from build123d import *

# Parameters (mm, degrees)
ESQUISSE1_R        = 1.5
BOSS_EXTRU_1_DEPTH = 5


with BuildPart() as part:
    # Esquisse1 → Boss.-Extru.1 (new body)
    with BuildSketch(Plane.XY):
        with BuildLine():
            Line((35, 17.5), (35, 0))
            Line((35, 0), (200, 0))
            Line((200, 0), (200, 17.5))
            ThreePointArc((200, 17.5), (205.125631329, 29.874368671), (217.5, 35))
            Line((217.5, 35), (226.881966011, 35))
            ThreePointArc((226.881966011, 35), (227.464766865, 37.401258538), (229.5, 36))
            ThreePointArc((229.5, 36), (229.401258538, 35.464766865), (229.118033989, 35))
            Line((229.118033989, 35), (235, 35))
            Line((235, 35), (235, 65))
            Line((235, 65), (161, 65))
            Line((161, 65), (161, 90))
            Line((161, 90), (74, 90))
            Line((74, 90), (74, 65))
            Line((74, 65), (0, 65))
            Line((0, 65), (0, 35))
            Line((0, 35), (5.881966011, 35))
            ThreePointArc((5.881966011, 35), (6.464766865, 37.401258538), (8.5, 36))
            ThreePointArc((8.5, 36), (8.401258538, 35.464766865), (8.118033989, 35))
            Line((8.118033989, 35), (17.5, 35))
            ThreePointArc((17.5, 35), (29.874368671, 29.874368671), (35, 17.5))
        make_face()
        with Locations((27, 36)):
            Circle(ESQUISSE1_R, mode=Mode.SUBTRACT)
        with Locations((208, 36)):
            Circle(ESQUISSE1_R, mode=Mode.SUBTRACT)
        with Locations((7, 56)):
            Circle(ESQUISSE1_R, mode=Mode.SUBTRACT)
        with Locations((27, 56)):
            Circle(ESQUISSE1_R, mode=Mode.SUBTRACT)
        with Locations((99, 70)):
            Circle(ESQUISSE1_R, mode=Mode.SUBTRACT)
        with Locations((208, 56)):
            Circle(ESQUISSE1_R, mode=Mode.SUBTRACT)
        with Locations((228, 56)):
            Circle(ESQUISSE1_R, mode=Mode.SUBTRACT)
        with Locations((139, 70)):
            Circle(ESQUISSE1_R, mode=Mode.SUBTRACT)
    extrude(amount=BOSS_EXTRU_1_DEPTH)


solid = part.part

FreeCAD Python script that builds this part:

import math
import FreeCAD as App
import Part
import Sketcher

V = App.Vector

doc = App.newDocument("Part")
params = doc.addObject("Spreadsheet::Sheet", "Params")
for row, (alias, value) in enumerate([
    ("sketch1_diameter", "3 mm"),
    ("sketch1_radius", "17.5 mm"),
    ("sketch1_width", "165 mm"),
    ("sketch1_width2", "74 mm"),
    ("sketch1_width3", "87 mm"),
    ("pad1_length", "5 mm"),
], start=1):
    params.set(f"A{row}", alias)
    params.set(f"B{row}", "=" + value)
    params.setAlias(f"B{row}", alias)

body = doc.addObject("PartDesign::Body", "Body")

sketch1 = body.newObject("Sketcher::SketchObject", "Sketch")
sketch1.AttachmentSupport = (doc.getObject("XY_Plane"), [""])
sketch1.MapMode = "FlatFace"
sketch1.addGeometry(Part.LineSegment(V(35, 17.5, 0), V(35, 0, 0)), False)
sketch1.addGeometry(Part.LineSegment(V(35, 0, 0), V(200, 0, 0)), False)
sketch1.addGeometry(Part.LineSegment(V(200, 0, 0), V(200, 17.5, 0)), False)
sketch1.addGeometry(Part.ArcOfCircle(Part.Circle(V(217.5, 17.5, 0), V(0, 0, 1), 17.5), math.radians(90), math.radians(180)), False)
sketch1.addGeometry(Part.LineSegment(V(217.5, 35, 0), V(226.9, 35, 0)), False)
sketch1.addGeometry(Part.ArcOfCircle(Part.Circle(V(228, 36, 0), V(0, 0, 1), 1.5), math.radians(0), math.radians(222)), False)
sketch1.addGeometry(Part.ArcOfCircle(Part.Circle(V(228, 36, 0), V(0, 0, 1), 1.5), math.radians(-42), math.radians(0)), False)
sketch1.addGeometry(Part.LineSegment(V(229.1, 35, 0), V(235, 35, 0)), False)
sketch1.addGeometry(Part.LineSegment(V(235, 35, 0), V(235, 65, 0)), False)
sketch1.addGeometry(Part.LineSegment(V(235, 65, 0), V(161, 65, 0)), False)
sketch1.addGeometry(Part.LineSegment(V(161, 65, 0), V(161, 90, 0)), False)
sketch1.addGeometry(Part.LineSegment(V(161, 90, 0), V(74, 90, 0)), False)
sketch1.addGeometry(Part.LineSegment(V(74, 90, 0), V(74, 65, 0)), False)
sketch1.addGeometry(Part.LineSegment(V(74, 65, 0), V(0, 65, 0)), False)
sketch1.addGeometry(Part.LineSegment(V(0, 65, 0), V(0, 35, 0)), False)
sketch1.addGeometry(Part.LineSegment(V(0, 35, 0), V(5.9, 35, 0)), False)
sketch1.addGeometry(Part.ArcOfCircle(Part.Circle(V(7, 36, 0), V(0, 0, 1), 1.5), math.radians(0), math.radians(222)), False)
sketch1.addGeometry(Part.ArcOfCircle(Part.Circle(V(7, 36, 0), V(0, 0, 1), 1.5), math.radians(-42), math.radians(0)), False)
sketch1.addGeometry(Part.LineSegment(V(8.1, 35, 0), V(17.5, 35, 0)), False)
sketch1.addGeometry(Part.ArcOfCircle(Part.Circle(V(17.5, 17.5, 0), V(0, 0, 1), 17.5), math.radians(0), math.radians(90)), False)
sketch1.addGeometry(Part.Circle(V(27, 36, 0), V(0, 0, 1), 1.5), False)
sketch1.addGeometry(Part.Circle(V(208, 36, 0), V(0, 0, 1), 1.5), False)
sketch1.addGeometry(Part.Circle(V(7, 56, 0), V(0, 0, 1), 1.5), False)
sketch1.addGeometry(Part.Circle(V(27, 56, 0), V(0, 0, 1), 1.5), False)
sketch1.addGeometry(Part.Circle(V(99, 70, 0), V(0, 0, 1), 1.5), False)
sketch1.addGeometry(Part.Circle(V(208, 56, 0), V(0, 0, 1), 1.5), False)
sketch1.addGeometry(Part.Circle(V(228, 56, 0), V(0, 0, 1), 1.5), False)
sketch1.addGeometry(Part.Circle(V(139, 70, 0), V(0, 0, 1), 1.5), False)
sketch1.addConstraint(Sketcher.Constraint("Coincident", 0, 2, 1, 1))
sketch1.addConstraint(Sketcher.Constraint("Coincident", 1, 2, 2, 1))
sketch1.addConstraint(Sketcher.Constraint("Tangent", 2, 2, 3, 2))
sketch1.addConstraint(Sketcher.Constraint("Tangent", 3, 1, 4, 1))
sketch1.addConstraint(Sketcher.Constraint("Coincident", 4, 2, 5, 2))
sketch1.addConstraint(Sketcher.Constraint("Tangent", 5, 1, 6, 2))
sketch1.addConstraint(Sketcher.Constraint("Coincident", 6, 1, 7, 1))
sketch1.addConstraint(Sketcher.Constraint("Coincident", 7, 2, 8, 1))
sketch1.addConstraint(Sketcher.Constraint("Coincident", 8, 2, 9, 1))
sketch1.addConstraint(Sketcher.Constraint("Coincident", 9, 2, 10, 1))
sketch1.addConstraint(Sketcher.Constraint("Coincident", 10, 2, 11, 1))
sketch1.addConstraint(Sketcher.Constraint("Coincident", 11, 2, 12, 1))
sketch1.addConstraint(Sketcher.Constraint("Coincident", 12, 2, 13, 1))
sketch1.addConstraint(Sketcher.Constraint("Coincident", 13, 2, 14, 1))
sketch1.addConstraint(Sketcher.Constraint("Coincident", 14, 2, 15, 1))
sketch1.addConstraint(Sketcher.Constraint("Coincident", 15, 2, 16, 2))
sketch1.addConstraint(Sketcher.Constraint("Tangent", 16, 1, 17, 2))
sketch1.addConstraint(Sketcher.Constraint("Coincident", 17, 1, 18, 1))
sketch1.addConstraint(Sketcher.Constraint("Tangent", 18, 2, 19, 2))
sketch1.addConstraint(Sketcher.Constraint("Tangent", 19, 1, 0, 1))
sketch1.addConstraint(Sketcher.Constraint("Vertical", 0))
sketch1.addConstraint(Sketcher.Constraint("Horizontal", 1))
sketch1.addConstraint(Sketcher.Constraint("Vertical", 2))
sketch1.addConstraint(Sketcher.Constraint("Horizontal", 4))
sketch1.addConstraint(Sketcher.Constraint("Horizontal", 7))
sketch1.addConstraint(Sketcher.Constraint("Vertical", 8))
sketch1.addConstraint(Sketcher.Constraint("Horizontal", 9))
sketch1.addConstraint(Sketcher.Constraint("Vertical", 10))
sketch1.addConstraint(Sketcher.Constraint("Horizontal", 11))
sketch1.addConstraint(Sketcher.Constraint("Vertical", 12))
sketch1.addConstraint(Sketcher.Constraint("Horizontal", 13))
sketch1.addConstraint(Sketcher.Constraint("Vertical", 14))
sketch1.addConstraint(Sketcher.Constraint("Horizontal", 15))
sketch1.addConstraint(Sketcher.Constraint("Horizontal", 18))
sketch1.addConstraint(Sketcher.Constraint("Equal", 5, 6))
sketch1.addConstraint(Sketcher.Constraint("Equal", 6, 16))
sketch1.addConstraint(Sketcher.Constraint("Equal", 16, 17))
sketch1.addConstraint(Sketcher.Constraint("Equal", 3, 19))
sketch1.addConstraint(Sketcher.Constraint("Equal", 17, 20))
sketch1.addConstraint(Sketcher.Constraint("Equal", 20, 21))
sketch1.addConstraint(Sketcher.Constraint("Equal", 21, 22))
sketch1.addConstraint(Sketcher.Constraint("Equal", 22, 23))
sketch1.addConstraint(Sketcher.Constraint("Equal", 23, 24))
sketch1.addConstraint(Sketcher.Constraint("Equal", 24, 25))
sketch1.addConstraint(Sketcher.Constraint("Equal", 25, 26))
sketch1.addConstraint(Sketcher.Constraint("Equal", 26, 27))
sketch1.addConstraint(Sketcher.Constraint("PointOnObject", 0, 2, -1))
sketch1.addConstraint(Sketcher.Constraint("PointOnObject", 13, 2, -2))
sketch1.addConstraint(Sketcher.Constraint("Horizontal", 6, 3, 16, 3))
sketch1.addConstraint(Sketcher.Constraint("Horizontal", 3, 3, 19, 3))
sketch1.addConstraint(Sketcher.Constraint("Horizontal", 17, 3, 20, 3))
sketch1.addConstraint(Sketcher.Constraint("Horizontal", 20, 3, 21, 3))
sketch1.addConstraint(Sketcher.Constraint("Horizontal", 22, 3, 23, 3))
sketch1.addConstraint(Sketcher.Constraint("Horizontal", 23, 3, 25, 3))
sketch1.addConstraint(Sketcher.Constraint("Horizontal", 25, 3, 26, 3))
sketch1.addConstraint(Sketcher.Constraint("Horizontal", 24, 3, 27, 3))
sketch1.addConstraint(Sketcher.Constraint("Horizontal", 21, 3, 5, 1))
sketch1.addConstraint(Sketcher.Constraint("Horizontal", 4, 2, 6, 1))
sketch1.addConstraint(Sketcher.Constraint("Horizontal", 9, 2, 12, 2))
sketch1.addConstraint(Sketcher.Constraint("Horizontal", 7, 2, 14, 2))
sketch1.addConstraint(Sketcher.Constraint("Horizontal", 5, 1, 16, 1))
sketch1.addConstraint(Sketcher.Constraint("Vertical", 17, 3, 22, 3))
sketch1.addConstraint(Sketcher.Constraint("Vertical", 20, 3, 23, 3))
sketch1.addConstraint(Sketcher.Constraint("Vertical", 21, 3, 25, 3))
sketch1.addConstraint(Sketcher.Constraint("Vertical", 6, 3, 26, 3))
sketch1.addConstraint(Sketcher.Constraint("Equal", 9, 13))
sketch1.addConstraint(Sketcher.Constraint("Equal", 7, 15))
sketch1.addConstraint(Sketcher.Constraint("Equal", 4, 18))
sketch1.addConstraint(Sketcher.Constraint("Diameter", 20, 3.0))
sketch1.addConstraint(Sketcher.Constraint("Radius", 3, 17.5))
sketch1.addConstraint(Sketcher.Constraint("DistanceX", 1, 1, 1, 2, 165.0))
sketch1.addConstraint(Sketcher.Constraint("DistanceX", 9, 2, 9, 1, 74.0))
sketch1.addConstraint(Sketcher.Constraint("DistanceX", 11, 2, 11, 1, 87.0))
sketch1.addConstraint(Sketcher.Constraint("DistanceY", 8, 1, 8, 2, 30.0))
sketch1.addConstraint(Sketcher.Constraint("DistanceY", 10, 1, 10, 2, 25.0))
sketch1.addConstraint(Sketcher.Constraint("DistanceY", 0, 2, 0, 1, 17.5))
sketch1.addConstraint(Sketcher.Constraint("DistanceX", -1, 1, 5, 3, 228.0))
sketch1.addConstraint(Sketcher.Constraint("DistanceY", -1, 1, 5, 3, 36.0))
sketch1.addConstraint(Sketcher.Constraint("DistanceX", -1, 1, 20, 3, 27.0))
sketch1.addConstraint(Sketcher.Constraint("DistanceX", -1, 1, 21, 3, 208.0))
sketch1.addConstraint(Sketcher.Constraint("DistanceY", -1, 1, 22, 3, 56.0))
sketch1.addConstraint(Sketcher.Constraint("DistanceX", -1, 1, 24, 3, 99.0))
sketch1.addConstraint(Sketcher.Constraint("DistanceY", -1, 1, 24, 3, 70.0))
sketch1.addConstraint(Sketcher.Constraint("DistanceX", -1, 1, 27, 3, 139.0))
sketch1.setExpression("Constraints[68]", "Params.sketch1_diameter")
sketch1.setExpression("Constraints[69]", "Params.sketch1_radius")
sketch1.setExpression("Constraints[70]", "Params.sketch1_width")
sketch1.setExpression("Constraints[71]", "Params.sketch1_width2")
sketch1.setExpression("Constraints[72]", "Params.sketch1_width3")
pad1 = body.newObject("PartDesign::Pad", "Pad")
pad1.Profile = sketch1
pad1.setExpression("Length", "Params.pad1_length")

doc.recompute()
